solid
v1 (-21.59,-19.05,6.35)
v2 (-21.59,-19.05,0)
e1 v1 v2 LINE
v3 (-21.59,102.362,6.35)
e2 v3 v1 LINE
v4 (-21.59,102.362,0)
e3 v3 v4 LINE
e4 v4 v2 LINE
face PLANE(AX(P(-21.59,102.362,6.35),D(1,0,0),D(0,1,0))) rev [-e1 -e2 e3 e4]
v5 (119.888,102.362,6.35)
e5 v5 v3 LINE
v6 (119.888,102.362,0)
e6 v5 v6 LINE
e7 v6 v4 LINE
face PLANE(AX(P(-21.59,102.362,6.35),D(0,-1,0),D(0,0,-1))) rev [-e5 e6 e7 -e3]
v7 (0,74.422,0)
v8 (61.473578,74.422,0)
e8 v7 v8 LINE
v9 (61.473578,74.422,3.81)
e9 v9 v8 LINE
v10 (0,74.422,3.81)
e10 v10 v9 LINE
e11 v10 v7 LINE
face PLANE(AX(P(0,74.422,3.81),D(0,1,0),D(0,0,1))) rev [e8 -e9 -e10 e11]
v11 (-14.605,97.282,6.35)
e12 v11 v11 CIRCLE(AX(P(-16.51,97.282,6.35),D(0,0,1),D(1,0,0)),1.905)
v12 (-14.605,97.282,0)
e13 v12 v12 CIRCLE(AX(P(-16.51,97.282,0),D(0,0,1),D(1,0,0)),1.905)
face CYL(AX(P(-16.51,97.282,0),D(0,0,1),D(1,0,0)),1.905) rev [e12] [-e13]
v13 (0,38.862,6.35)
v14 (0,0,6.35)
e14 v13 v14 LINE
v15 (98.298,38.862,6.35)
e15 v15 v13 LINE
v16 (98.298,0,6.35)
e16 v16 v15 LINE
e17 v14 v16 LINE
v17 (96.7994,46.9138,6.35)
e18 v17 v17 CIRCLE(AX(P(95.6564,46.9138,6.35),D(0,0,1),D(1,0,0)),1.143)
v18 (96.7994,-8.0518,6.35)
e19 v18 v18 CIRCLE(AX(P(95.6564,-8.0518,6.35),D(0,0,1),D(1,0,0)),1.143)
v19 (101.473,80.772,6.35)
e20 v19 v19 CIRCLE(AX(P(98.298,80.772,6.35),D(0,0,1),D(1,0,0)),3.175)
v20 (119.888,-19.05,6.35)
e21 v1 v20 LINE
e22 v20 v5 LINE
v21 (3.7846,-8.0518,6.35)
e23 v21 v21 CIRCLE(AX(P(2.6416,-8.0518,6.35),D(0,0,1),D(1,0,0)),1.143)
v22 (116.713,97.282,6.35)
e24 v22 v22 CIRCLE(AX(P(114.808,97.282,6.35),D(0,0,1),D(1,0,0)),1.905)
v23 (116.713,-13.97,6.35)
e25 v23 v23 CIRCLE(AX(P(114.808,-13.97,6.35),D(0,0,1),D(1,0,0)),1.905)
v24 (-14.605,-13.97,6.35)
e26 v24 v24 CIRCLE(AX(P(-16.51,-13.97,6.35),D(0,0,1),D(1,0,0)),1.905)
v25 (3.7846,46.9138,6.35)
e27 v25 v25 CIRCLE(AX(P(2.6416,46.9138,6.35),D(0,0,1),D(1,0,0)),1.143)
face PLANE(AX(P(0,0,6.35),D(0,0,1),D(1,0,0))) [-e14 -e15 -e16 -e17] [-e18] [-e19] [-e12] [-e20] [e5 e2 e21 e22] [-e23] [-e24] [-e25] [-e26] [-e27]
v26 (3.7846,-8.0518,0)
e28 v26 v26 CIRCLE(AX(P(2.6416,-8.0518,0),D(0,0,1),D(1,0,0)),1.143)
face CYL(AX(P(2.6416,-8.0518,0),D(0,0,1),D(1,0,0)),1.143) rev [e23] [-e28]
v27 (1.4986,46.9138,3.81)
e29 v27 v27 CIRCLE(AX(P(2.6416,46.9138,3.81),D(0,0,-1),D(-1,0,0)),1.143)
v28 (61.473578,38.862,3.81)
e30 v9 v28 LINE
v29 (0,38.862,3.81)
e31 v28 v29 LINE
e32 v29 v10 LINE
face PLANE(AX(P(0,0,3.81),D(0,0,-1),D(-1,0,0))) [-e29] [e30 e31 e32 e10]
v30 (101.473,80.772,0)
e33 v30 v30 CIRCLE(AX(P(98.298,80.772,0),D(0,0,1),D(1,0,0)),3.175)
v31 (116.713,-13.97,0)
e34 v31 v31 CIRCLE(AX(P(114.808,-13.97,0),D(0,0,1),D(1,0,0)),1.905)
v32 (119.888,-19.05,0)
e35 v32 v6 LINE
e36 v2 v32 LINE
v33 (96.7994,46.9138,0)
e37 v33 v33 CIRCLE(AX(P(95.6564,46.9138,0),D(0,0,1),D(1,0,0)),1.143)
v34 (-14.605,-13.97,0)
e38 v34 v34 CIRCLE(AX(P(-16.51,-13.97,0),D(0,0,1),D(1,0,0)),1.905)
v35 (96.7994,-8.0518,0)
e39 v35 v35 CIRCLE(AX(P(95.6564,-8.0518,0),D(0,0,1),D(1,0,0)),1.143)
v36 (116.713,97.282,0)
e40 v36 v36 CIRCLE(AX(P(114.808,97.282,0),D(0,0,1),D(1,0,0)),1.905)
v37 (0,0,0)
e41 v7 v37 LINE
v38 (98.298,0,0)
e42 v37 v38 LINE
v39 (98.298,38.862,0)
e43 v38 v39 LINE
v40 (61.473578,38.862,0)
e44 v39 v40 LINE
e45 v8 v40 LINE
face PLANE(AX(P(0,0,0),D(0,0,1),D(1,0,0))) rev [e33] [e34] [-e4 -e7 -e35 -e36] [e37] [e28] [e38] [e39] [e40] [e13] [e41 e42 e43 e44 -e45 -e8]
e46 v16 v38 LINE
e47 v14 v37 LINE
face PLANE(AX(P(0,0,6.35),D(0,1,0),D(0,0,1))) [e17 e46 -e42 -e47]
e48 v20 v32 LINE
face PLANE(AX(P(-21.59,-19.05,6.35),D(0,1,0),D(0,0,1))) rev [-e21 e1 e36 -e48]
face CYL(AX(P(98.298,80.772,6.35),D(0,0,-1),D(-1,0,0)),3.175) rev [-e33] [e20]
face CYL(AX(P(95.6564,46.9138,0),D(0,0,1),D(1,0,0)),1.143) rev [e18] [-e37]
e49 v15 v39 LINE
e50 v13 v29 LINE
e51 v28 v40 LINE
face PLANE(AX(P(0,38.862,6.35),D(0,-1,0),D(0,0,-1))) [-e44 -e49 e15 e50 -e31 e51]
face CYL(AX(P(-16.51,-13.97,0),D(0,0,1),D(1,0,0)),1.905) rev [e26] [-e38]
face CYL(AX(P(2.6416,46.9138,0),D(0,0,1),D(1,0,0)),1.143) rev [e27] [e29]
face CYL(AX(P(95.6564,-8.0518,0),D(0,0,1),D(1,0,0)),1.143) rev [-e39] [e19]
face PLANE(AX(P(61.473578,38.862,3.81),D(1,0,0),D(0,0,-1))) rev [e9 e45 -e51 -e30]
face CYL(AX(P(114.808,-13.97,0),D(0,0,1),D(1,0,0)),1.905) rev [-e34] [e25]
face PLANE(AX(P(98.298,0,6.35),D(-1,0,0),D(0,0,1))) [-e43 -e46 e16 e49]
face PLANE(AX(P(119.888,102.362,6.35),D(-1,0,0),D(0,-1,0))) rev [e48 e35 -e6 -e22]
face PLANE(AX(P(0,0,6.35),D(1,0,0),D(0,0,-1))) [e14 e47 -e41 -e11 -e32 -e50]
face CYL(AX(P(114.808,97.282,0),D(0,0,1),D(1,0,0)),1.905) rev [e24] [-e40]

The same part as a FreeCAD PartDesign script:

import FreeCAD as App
import Part
import Sketcher
Q = App.Units.Quantity

doc = App.newDocument("Part")
params = doc.addObject("Spreadsheet::Sheet", "Params")
for row, (alias, value) in enumerate([
    ("sketch1_diameter", "0.25 in"),
    ("sketch1_width", "5.57 in"),
    ("sketch1_width2", "3.87 in"),
    ("sketch1_height", "4.78 in"),
    ("sketch1_height2", "1.53 in"),
    ("pad1_length", "0.25 in"),
    ("sketch2_height", "1.4 in"),
    ("pocket1_length", "0.15 in"),
    ("sketch3_diameter", "0.09 in"),
    ("sketch4_diameter", "0.15 in"),
], start=1):
    params.set(f"A{row}", alias)
    params.set(f"B{row}", "=" + value)
    params.setAlias(f"B{row}", alias)

body = doc.addObject("PartDesign::Body", "Body")

# Sketch on XY plane
sketch1 = body.newObject("Sketcher::SketchObject", "Sketch")
sketch1.AttachmentSupport = (doc.getObject("XY_Plane"), [""])
sketch1.MapMode = "FlatFace"
sketch1.addGeometry([
    Part.LineSegment(App.Vector(-21.59, 102.362, 0), App.Vector(-21.59, -19.05, 0)),  # 0
    Part.LineSegment(App.Vector(-21.59, -19.05, 0), App.Vector(119.888, -19.05, 0)),  # 1
    Part.LineSegment(App.Vector(119.888, -19.05, 0), App.Vector(119.888, 102.362, 0)),  # 2
    Part.LineSegment(App.Vector(119.888, 102.362, 0), App.Vector(-21.59, 102.362, 0)),  # 3
    Part.LineSegment(App.Vector(98.298, 0, 0), App.Vector(0, 0, 0)),  # 4
    Part.LineSegment(App.Vector(0, 0, 0), App.Vector(0, 38.862, 0)),  # 5
    Part.LineSegment(App.Vector(0, 38.862, 0), App.Vector(98.298, 38.862, 0)),  # 6
    Part.LineSegment(App.Vector(98.298, 38.862, 0), App.Vector(98.298, 0, 0)),  # 7
    Part.Circle(App.Vector(98.298, 80.772, 0), App.Vector(0, 0, 1), 3.175),  # 8
], False)
sketch1.addConstraint([
    Sketcher.Constraint("Coincident", 0, 2, 1, 1),
    Sketcher.Constraint("Coincident", 1, 2, 2, 1),
    Sketcher.Constraint("Coincident", 2, 2, 3, 1),
    Sketcher.Constraint("Coincident", 3, 2, 0, 1),
    Sketcher.Constraint("Coincident", 4, 2, 5, 1),
    Sketcher.Constraint("Coincident", 5, 2, 6, 1),
    Sketcher.Constraint("Coincident", 6, 2, 7, 1),
    Sketcher.Constraint("Coincident", 7, 2, 4, 1),
    Sketcher.Constraint("Vertical", 0),
    Sketcher.Constraint("Horizontal", 1),
    Sketcher.Constraint("Vertical", 2),
    Sketcher.Constraint("Horizontal", 3),
    Sketcher.Constraint("Horizontal", 4),
    Sketcher.Constraint("Vertical", 5),
    Sketcher.Constraint("Horizontal", 6),
    Sketcher.Constraint("Vertical", 7),
    Sketcher.Constraint("Coincident", 4, 2, -1, 1),
    Sketcher.Constraint("Vertical", 8, 3, 6, 2),
    Sketcher.Constraint("Diameter", 8, Q("0.25 in")),
    Sketcher.Constraint("DistanceX", 1, 1, 1, 2, Q("5.57 in")),
    Sketcher.Constraint("DistanceX", 4, 2, 4, 1, Q("3.87 in")),
    Sketcher.Constraint("DistanceY", 0, 2, 0, 1, Q("4.78 in")),
    Sketcher.Constraint("DistanceY", 5, 1, 5, 2, Q("1.53 in")),
    Sketcher.Constraint("DistanceY", 5, 2, 3, 2, Q("2.5 in")),
    Sketcher.Constraint("DistanceY", -1, 1, 8, 3, Q("3.18 in")),
    Sketcher.Constraint("DistanceX", 0, 2, -1, 1, Q("0.85 in")),
])
sketch1.setExpression("Constraints[18]", "Params.sketch1_diameter")
sketch1.setExpression("Constraints[19]", "Params.sketch1_width")
sketch1.setExpression("Constraints[20]", "Params.sketch1_width2")
sketch1.setExpression("Constraints[21]", "Params.sketch1_height")
sketch1.setExpression("Constraints[22]", "Params.sketch1_height2")
pad1 = body.newObject("PartDesign::Pad", "Pad")
pad1.Profile = sketch1
pad1.setExpression("Length", "Params.pad1_length")

# Sketch on XY plane
sketch2 = body.newObject("Sketcher::SketchObject", "Sketch001")
sketch2.AttachmentSupport = (doc.getObject("XY_Plane"), [""])
sketch2.MapMode = "FlatFace"
sketch2.addGeometry([
    Part.LineSegment(App.Vector(61.473578, 74.422, 0), App.Vector(61.473578, 38.862, 0)),
    Part.LineSegment(App.Vector(61.473578, 38.862, 0), App.Vector(0, 38.862, 0)),
    Part.LineSegment(App.Vector(0, 38.862, 0), App.Vector(0, 74.422, 0)),
    Part.LineSegment(App.Vector(0, 74.422, 0), App.Vector(61.473578, 74.422, 0)),
], False)
sketch2.addConstraint([
    Sketcher.Constraint("Coincident", 0, 2, 1, 1),
    Sketcher.Constraint("Coincident", 1, 2, 2, 1),
    Sketcher.Constraint("Coincident", 2, 2, 3, 1),
    Sketcher.Constraint("Coincident", 3, 2, 0, 1),
    Sketcher.Constraint("Vertical", 0),
    Sketcher.Constraint("Horizontal", 1),
    Sketcher.Constraint("Vertical", 2),
    Sketcher.Constraint("Horizontal", 3),
    Sketcher.Constraint("PointOnObject", 1, 2, -2),
    Sketcher.Constraint("DistanceY", 0, 2, 0, 1, Q("1.4 in")),
    Sketcher.Constraint("DistanceY", -1, 1, 0, 2, Q("1.53 in")),
    Sketcher.Constraint("DistanceX", 1, 2, 1, 1, 61.473578),
])
sketch2.setExpression("Constraints[9]", "Params.sketch2_height")
pocket1 = body.newObject("PartDesign::Pocket", "Pocket")
pocket1.Profile = sketch2
pocket1.setExpression("Length", "Params.pocket1_length")
pocket1.Reversed = True

# Sketch on XY plane
sketch3 = body.newObject("Sketcher::SketchObject", "Sketch002")
sketch3.AttachmentSupport = (doc.getObject("XY_Plane"), [""])
sketch3.MapMode = "FlatFace"
sketch3.AttachmentOffset = App.Placement(App.Vector(0, 0, 0.25 * 25.4), App.Rotation())
sketch3.addGeometry([
    Part.Circle(App.Vector(2.6416, 46.9138, 0), App.Vector(0, 0, 1), 1.143),
    Part.Circle(App.Vector(95.6564, 46.9138, 0), App.Vector(0, 0, 1), 1.143),
    Part.Circle(App.Vector(95.6564, -8.0518, 0), App.Vector(0, 0, 1), 1.143),
    Part.Circle(App.Vector(2.6416, -8.0518, 0), App.Vector(0, 0, 1), 1.143),
], False)
sketch3.addConstraint([
    Sketcher.Constraint("Equal", 0, 1),
    Sketcher.Constraint("Equal", 1, 2),
    Sketcher.Constraint("Equal", 2, 3),
    Sketcher.Constraint("Horizontal", 0, 3, 1, 3),
    Sketcher.Constraint("Horizontal", 2, 3, 3, 3),
    Sketcher.Constraint("Vertical", 1, 3, 2, 3),
    Sketcher.Constraint("Vertical", 0, 3, 3, 3),
    Sketcher.Constraint("Diameter", 0, Q("0.09 in")),
    Sketcher.Constraint("DistanceX", -1, 1, 0, 3, Q("0.104 in")),
    Sketcher.Constraint("DistanceY", -1, 1, 0, 3, Q("1.847 in")),
    Sketcher.Constraint("DistanceX", -1, 1, 1, 3, Q("3.766 in")),
    Sketcher.Constraint("DistanceY", 2, 3, -1, 1, Q("0.317 in")),
])
sketch3.setExpression("Constraints[7]", "Params.sketch3_diameter")
pocket2 = body.newObject("PartDesign::Pocket", "Pocket001")
pocket2.Profile = sketch3
pocket2.Type = "ThroughAll"

# Sketch on XY plane
sketch4 = body.newObject("Sketcher::SketchObject", "Sketch003")
sketch4.AttachmentSupport = (doc.getObject("XY_Plane"), [""])
sketch4.MapMode = "FlatFace"
sketch4.AttachmentOffset = App.Placement(App.Vector(0, 0, 0.25 * 25.4), App.Rotation())
sketch4.addGeometry([
    Part.Circle(App.Vector(-16.51, 97.282, 0), App.Vector(0, 0, 1), 1.905),
    Part.Circle(App.Vector(-16.51, -13.97, 0), App.Vector(0, 0, 1), 1.905),
    Part.Circle(App.Vector(114.808, -13.97, 0), App.Vector(0, 0, 1), 1.905),
    Part.Circle(App.Vector(114.808, 97.282, 0), App.Vector(0, 0, 1), 1.905),
], False)
sketch4.addConstraint([
    Sketcher.Constraint("Equal", 0, 1),
    Sketcher.Constraint("Equal", 1, 2),
    Sketcher.Constraint("Equal", 2, 3),
    Sketcher.Constraint("Horizontal", 1, 3, 2, 3),
    Sketcher.Constraint("Horizontal", 0, 3, 3, 3),
    Sketcher.Constraint("Vertical", 0, 3, 1, 3),
    Sketcher.Constraint("Vertical", 2, 3, 3, 3),
    Sketcher.Constraint("Diameter", 0, Q("0.15 in")),
    Sketcher.Constraint("DistanceX", 0, 3, -1, 1, Q("0.65 in")),
    Sketcher.Constraint("DistanceY", -1, 1, 0, 3, Q("3.83 in")),
    Sketcher.Constraint("DistanceY", 1, 3, -1, 1, Q("0.55 in")),
    Sketcher.Constraint("DistanceX", -1, 1, 2, 3, Q("4.52 in")),
])
sketch4.setExpression("Constraints[7]", "Params.sketch4_diameter")
pocket3 = body.newObject("PartDesign::Pocket", "Pocket002")
pocket3.Profile = sketch4
pocket3.Type = "ThroughAll"

doc.recompute()
